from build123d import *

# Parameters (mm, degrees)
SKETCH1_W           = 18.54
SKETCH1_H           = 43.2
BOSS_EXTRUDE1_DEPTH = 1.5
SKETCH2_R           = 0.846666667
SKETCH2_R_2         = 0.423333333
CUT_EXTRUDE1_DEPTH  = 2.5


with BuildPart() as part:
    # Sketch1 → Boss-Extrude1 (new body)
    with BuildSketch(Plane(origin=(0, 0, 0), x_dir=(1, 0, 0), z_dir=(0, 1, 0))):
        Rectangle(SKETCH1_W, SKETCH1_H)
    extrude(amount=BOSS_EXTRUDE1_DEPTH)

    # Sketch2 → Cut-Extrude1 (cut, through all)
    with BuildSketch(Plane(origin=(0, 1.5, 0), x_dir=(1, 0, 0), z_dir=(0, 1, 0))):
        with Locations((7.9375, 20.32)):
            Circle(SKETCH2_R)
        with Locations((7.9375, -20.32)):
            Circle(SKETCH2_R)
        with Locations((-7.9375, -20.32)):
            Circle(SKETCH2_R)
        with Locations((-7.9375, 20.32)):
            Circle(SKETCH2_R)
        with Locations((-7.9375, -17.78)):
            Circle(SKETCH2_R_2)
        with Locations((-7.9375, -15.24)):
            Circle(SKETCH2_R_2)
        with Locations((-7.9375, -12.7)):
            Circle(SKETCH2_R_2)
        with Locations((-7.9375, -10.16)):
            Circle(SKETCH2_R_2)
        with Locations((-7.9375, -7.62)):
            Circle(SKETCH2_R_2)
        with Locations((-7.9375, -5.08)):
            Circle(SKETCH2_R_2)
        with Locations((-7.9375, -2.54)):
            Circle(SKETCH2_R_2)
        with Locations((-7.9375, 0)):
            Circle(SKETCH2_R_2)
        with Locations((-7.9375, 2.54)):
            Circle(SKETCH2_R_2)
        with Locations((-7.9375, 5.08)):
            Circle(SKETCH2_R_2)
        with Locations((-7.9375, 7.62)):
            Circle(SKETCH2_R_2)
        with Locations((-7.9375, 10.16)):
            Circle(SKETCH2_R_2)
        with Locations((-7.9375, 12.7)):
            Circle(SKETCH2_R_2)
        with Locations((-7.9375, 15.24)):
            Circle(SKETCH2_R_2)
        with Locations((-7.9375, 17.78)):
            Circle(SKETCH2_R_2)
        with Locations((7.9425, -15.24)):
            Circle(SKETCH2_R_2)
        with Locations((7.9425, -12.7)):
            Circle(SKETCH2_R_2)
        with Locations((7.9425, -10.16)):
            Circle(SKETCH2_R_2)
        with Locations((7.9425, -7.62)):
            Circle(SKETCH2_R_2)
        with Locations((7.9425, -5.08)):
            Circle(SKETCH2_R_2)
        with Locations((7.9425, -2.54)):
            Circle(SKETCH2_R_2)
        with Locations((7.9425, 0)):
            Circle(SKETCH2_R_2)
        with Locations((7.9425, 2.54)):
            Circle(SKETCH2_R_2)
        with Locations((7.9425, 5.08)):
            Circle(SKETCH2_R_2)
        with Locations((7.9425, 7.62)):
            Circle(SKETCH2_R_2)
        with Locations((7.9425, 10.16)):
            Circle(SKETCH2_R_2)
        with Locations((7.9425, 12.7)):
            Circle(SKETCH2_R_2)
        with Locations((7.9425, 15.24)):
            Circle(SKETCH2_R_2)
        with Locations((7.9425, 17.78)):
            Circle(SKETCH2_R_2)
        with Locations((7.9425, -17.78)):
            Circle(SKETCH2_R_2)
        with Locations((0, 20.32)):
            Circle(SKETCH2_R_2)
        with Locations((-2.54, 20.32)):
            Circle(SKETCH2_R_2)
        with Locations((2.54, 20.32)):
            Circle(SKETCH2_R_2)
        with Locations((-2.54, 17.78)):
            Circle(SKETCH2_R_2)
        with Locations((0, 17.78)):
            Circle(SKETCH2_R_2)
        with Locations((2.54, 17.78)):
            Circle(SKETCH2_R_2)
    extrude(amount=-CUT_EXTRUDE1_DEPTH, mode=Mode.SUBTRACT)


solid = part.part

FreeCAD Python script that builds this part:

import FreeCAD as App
import Part
import Sketcher

V = App.Vector

doc = App.newDocument("Part")
body = doc.addObject("PartDesign::Body", "Body")

sketch1 = body.newObject("Sketcher::SketchObject", "Sketch")
sketch1.AttachmentSupport = (doc.getObject("XZ_Plane"), [""])
sketch1.MapMode = "FlatFace"
sketch1.addGeometry([
    Part.LineSegment(V(-9, -22, 0), V(-9, 22, 0)),
    Part.LineSegment(V(-9, 22, 0), V(9, 22, 0)),
    Part.LineSegment(V(9, 22, 0), V(9, -22, 0)),
    Part.LineSegment(V(9, -22, 0), V(-9, -22, 0)),
], False)
sketch1.addConstraint([
    Sketcher.Constraint("Coincident", 0, 2, 1, 1),
    Sketcher.Constraint("Coincident", 1, 2, 2, 1),
    Sketcher.Constraint("Coincident", 2, 2, 3, 1),
    Sketcher.Constraint("Coincident", 3, 2, 0, 1),
    Sketcher.Constraint("Vertical", 0),
    Sketcher.Constraint("Horizontal", 1),
    Sketcher.Constraint("Vertical", 2),
    Sketcher.Constraint("Horizontal", 3),
    Sketcher.Constraint("Symmetric", 0, 2, 2, 2, -1, 1),
    Sketcher.Constraint("DistanceY", 0, 1, 0, 2, 43.2),
    Sketcher.Constraint("DistanceX", 1, 1, 1, 2, 18.54),
])
pad1 = body.newObject("PartDesign::Pad", "Pad")
pad1.Profile = sketch1
pad1.Length = 1.5
pad1.Reversed = True

sketch2 = body.newObject("Sketcher::SketchObject", "Sketch001")
sketch2.AttachmentSupport = (doc.getObject("XZ_Plane"), [""])
sketch2.MapMode = "FlatFace"
sketch2.AttachmentOffset = App.Placement(V(0, 0, -1.5), App.Rotation())
sketch2.addGeometry([
    Part.Circle(V(7.94, -20.32, 0), V(0, 0, 1), 0.85),
    Part.Circle(V(7.94, 20.32, 0), V(0, 0, 1), 0.85),
    Part.Circle(V(-7.94, 20.32, 0), V(0, 0, 1), 0.85),
    Part.Circle(V(-7.94, -20.32, 0), V(0, 0, 1), 0.85),
    Part.Circle(V(-7.94, 17.78, 0), V(0, 0, 1), 0.42),
    Part.Circle(V(-7.94, 15.24, 0), V(0, 0, 1), 0.42),
    Part.Circle(V(-7.94, 12.7, 0), V(0, 0, 1), 0.42),
    Part.Circle(V(-7.94, 10.16, 0), V(0, 0, 1), 0.42),
    Part.Circle(V(-7.94, 7.62, 0), V(0, 0, 1), 0.42),
    Part.Circle(V(-7.94, 5.08, 0), V(0, 0, 1), 0.42),
    Part.Circle(V(-7.94, 2.54, 0), V(0, 0, 1), 0.42),
    Part.Circle(V(-7.94, 0, 0), V(0, 0, 1), 0.42),
    Part.Circle(V(-7.94, -2.54, 0), V(0, 0, 1), 0.42),
    Part.Circle(V(-7.94, -5.08, 0), V(0, 0, 1), 0.42),
    Part.Circle(V(-7.94, -7.62, 0), V(0, 0, 1), 0.42),
    Part.Circle(V(-7.94, -10.16, 0), V(0, 0, 1), 0.42),
    Part.Circle(V(-7.94, -12.7, 0), V(0, 0, 1), 0.42),
    Part.Circle(V(-7.94, -15.24, 0), V(0, 0, 1), 0.42),
    Part.Circle(V(-7.94, -17.78, 0), V(0, 0, 1), 0.42),
    Part.Circle(V(7.94, 15.24, 0), V(0, 0, 1), 0.42),
    Part.Circle(V(7.94, 12.7, 0), V(0, 0, 1), 0.42),
    Part.Circle(V(7.94, 10.16, 0), V(0, 0, 1), 0.42),
    Part.Circle(V(7.94, 7.62, 0), V(0, 0, 1), 0.42),
    Part.Circle(V(7.94, 5.08, 0), V(0, 0, 1), 0.42),
    Part.Circle(V(7.94, 2.54, 0), V(0, 0, 1), 0.42),
    Part.Circle(V(7.94, 0, 0), V(0, 0, 1), 0.42),
    Part.Circle(V(7.94, -2.54, 0), V(0, 0, 1), 0.42),
    Part.Circle(V(7.94, -5.08, 0), V(0, 0, 1), 0.42),
    Part.Circle(V(7.94, -7.62, 0), V(0, 0, 1), 0.42),
    Part.Circle(V(7.94, -10.16, 0), V(0, 0, 1), 0.42),
    Part.Circle(V(7.94, -12.7, 0), V(0, 0, 1), 0.42),
    Part.Circle(V(7.94, -15.24, 0), V(0, 0, 1), 0.42),
    Part.Circle(V(7.94, -17.78, 0), V(0, 0, 1), 0.42),
    Part.Circle(V(7.94, 17.78, 0), V(0, 0, 1), 0.42),
    Part.Circle(V(0, -20.32, 0), V(0, 0, 1), 0.42),
    Part.Circle(V(-2.54, -20.32, 0), V(0, 0, 1), 0.42),
    Part.Circle(V(2.54, -20.32, 0), V(0, 0, 1), 0.42),
    Part.Circle(V(-2.54, -17.78, 0), V(0, 0, 1), 0.42),
    Part.Circle(V(0, -17.78, 0), V(0, 0, 1), 0.42),
    Part.Circle(V(2.54, -17.78, 0), V(0, 0, 1), 0.42),
], False)
sketch2.addConstraint([
    Sketcher.Constraint("Equal", 0, 1),
    Sketcher.Constraint("Equal", 1, 2),
    Sketcher.Constraint("Equal", 2, 3),
    Sketcher.Constraint("Equal", 4, 5),
    Sketcher.Constraint("Equal", 5, 6),
    Sketcher.Constraint("Equal", 6, 7),
    Sketcher.Constraint("Equal", 7, 8),
    Sketcher.Constraint("Equal", 8, 9),
    Sketcher.Constraint("Equal", 9, 10),
    Sketcher.Constraint("Equal", 10, 11),
    Sketcher.Constraint("Equal", 11, 12),
    Sketcher.Constraint("Equal", 12, 13),
    Sketcher.Constraint("Equal", 13, 14),
    Sketcher.Constraint("Equal", 14, 15),
    Sketcher.Constraint("Equal", 15, 16),
    Sketcher.Constraint("Equal", 16, 17),
    Sketcher.Constraint("Equal", 17, 18),
    Sketcher.Constraint("Equal", 18, 19),
    Sketcher.Constraint("Equal", 19, 20),
    Sketcher.Constraint("Equal", 20, 21),
    Sketcher.Constraint("Equal", 21, 22),
    Sketcher.Constraint("Equal", 22, 23),
    Sketcher.Constraint("Equal", 23, 24),
    Sketcher.Constraint("Equal", 24, 25),
    Sketcher.Constraint("Equal", 25, 26),
    Sketcher.Constraint("Equal", 26, 27),
    Sketcher.Constraint("Equal", 27, 28),
    Sketcher.Constraint("Equal", 28, 29),
    Sketcher.Constraint("Equal", 29, 30),
    Sketcher.Constraint("Equal", 30, 31),
    Sketcher.Constraint("Equal", 31, 32),
    Sketcher.Constraint("Equal", 32, 33),
    Sketcher.Constraint("Equal", 33, 34),
    Sketcher.Constraint("Equal", 34, 35),
    Sketcher.Constraint("Equal", 35, 36),
    Sketcher.Constraint("Equal", 36, 37),
    Sketcher.Constraint("Equal", 37, 38),
    Sketcher.Constraint("Equal", 38, 39),
    Sketcher.Constraint("Symmetric", 0, 3, 2, 3, -1, 1),
    Sketcher.Constraint("Symmetric", 1, 3, 3, 3, -1, 1),
    Sketcher.Constraint("Symmetric", 1, 3, 2, 3, -2),
    Sketcher.Constraint("Symmetric", 35, 3, 36, 3, -2),
    Sketcher.Constraint("Symmetric", 37, 3, 39, 3, -2),
    Sketcher.Constraint("Symmetric", 10, 3, 12, 3, -1),
    Sketcher.Constraint("Symmetric", 9, 3, 13, 3, -1),
    Sketcher.Constraint("Symmetric", 8, 3, 14, 3, -1),
    Sketcher.Constraint("Symmetric", 7, 3, 15, 3, -1),
    Sketcher.Constraint("Symmetric", 6, 3, 16, 3, -1),
    Sketcher.Constraint("Symmetric", 5, 3, 17, 3, -1),
    Sketcher.Constraint("Symmetric", 4, 3, 18, 3, -1),
    Sketcher.Constraint("Symmetric", 24, 3, 26, 3, -1),
    Sketcher.Constraint("Symmetric", 23, 3, 27, 3, -1),
    Sketcher.Constraint("Symmetric", 22, 3, 28, 3, -1),
    Sketcher.Constraint("Symmetric", 21, 3, 29, 3, -1),
    Sketcher.Constraint("Symmetric", 20, 3, 30, 3, -1),
    Sketcher.Constraint("Symmetric", 19, 3, 31, 3, -1),
    Sketcher.Constraint("Symmetric", 32, 3, 33, 3, -1),
    Sketcher.Constraint("PointOnObject", 11, 3, -1),
    Sketcher.Constraint("PointOnObject", 25, 3, -1),
    Sketcher.Constraint("PointOnObject", 34, 3, -2),
    Sketcher.Constraint("PointOnObject", 38, 3, -2),
    Sketcher.Constraint("Horizontal", 5, 3, 19, 3),
    Sketcher.Constraint("Horizontal", 6, 3, 20, 3),
    Sketcher.Constraint("Horizontal", 7, 3, 21, 3),
    Sketcher.Constraint("Horizontal", 8, 3, 22, 3),
    Sketcher.Constraint("Horizontal", 9, 3, 23, 3),
    Sketcher.Constraint("Horizontal", 10, 3, 24, 3),
    Sketcher.Constraint("Horizontal", 18, 3, 32, 3),
    Sketcher.Constraint("Horizontal", 3, 3, 34, 3),
    Sketcher.Constraint("Horizontal", 34, 3, 35, 3),
    Sketcher.Constraint("Horizontal", 32, 3, 37, 3),
    Sketcher.Constraint("Horizontal", 37, 3, 38, 3),
    Sketcher.Constraint("Vertical", 3, 3, 4, 3),
    Sketcher.Constraint("Vertical", 4, 3, 5, 3),
    Sketcher.Constraint("Vertical", 5, 3, 6, 3),
    Sketcher.Constraint("Vertical", 6, 3, 7, 3),
    Sketcher.Constraint("Vertical", 7, 3, 8, 3),
    Sketcher.Constraint("Vertical", 8, 3, 9, 3),
    Sketcher.Constraint("Vertical", 9, 3, 10, 3),
    Sketcher.Constraint("Vertical", 10, 3, 11, 3),
    Sketcher.Constraint("Vertical", 19, 3, 20, 3),
    Sketcher.Constraint("Vertical", 20, 3, 21, 3),
    Sketcher.Constraint("Vertical", 21, 3, 22, 3),
    Sketcher.Constraint("Vertical", 22, 3, 23, 3),
    Sketcher.Constraint("Vertical", 23, 3, 24, 3),
    Sketcher.Constraint("Vertical", 24, 3, 25, 3),
    Sketcher.Constraint("Vertical", 31, 3, 32, 3),
    Sketcher.Constraint("Vertical", 35, 3, 37, 3),
    Sketcher.Constraint("DistanceY", -1, 1, 6, 3, 12.7),
    Sketcher.Constraint("DistanceY", 3, 3, 4, 3, 38.1),
    Sketcher.Constraint("DistanceY", 8, 3, 2, 3, 12.7),
    Sketcher.Constraint("DistanceY", 9, 3, 4, 3, 12.7),
    Sketcher.Constraint("DistanceY", 10, 3, 5, 3, 12.7),
    Sketcher.Constraint("DistanceY", 12, 3, 7, 3, 12.7),
    Sketcher.Constraint("DistanceY", 0, 3, -1, 1, 20.32),
    Sketcher.Constraint("DistanceY", -1, 1, 5, 3, 15.24),
    Sketcher.Constraint("DistanceX", 35, 3, -1, 1, 2.54),
    Sketcher.Constraint("DistanceX", 5, 3, 19, 3, 15.88),
    Sketcher.Constraint("Diameter", 0, 1.693333),
    Sketcher.Constraint("Diameter", 4, 0.846667),
    Sketcher.Constraint("DistanceX", 2, 3, 1, 3, 15.875),
])
pocket1 = body.newObject("PartDesign::Pocket", "Pocket")
pocket1.Profile = sketch2
pocket1.Type = "ThroughAll"
pocket1.Reversed = True

doc.recompute()
